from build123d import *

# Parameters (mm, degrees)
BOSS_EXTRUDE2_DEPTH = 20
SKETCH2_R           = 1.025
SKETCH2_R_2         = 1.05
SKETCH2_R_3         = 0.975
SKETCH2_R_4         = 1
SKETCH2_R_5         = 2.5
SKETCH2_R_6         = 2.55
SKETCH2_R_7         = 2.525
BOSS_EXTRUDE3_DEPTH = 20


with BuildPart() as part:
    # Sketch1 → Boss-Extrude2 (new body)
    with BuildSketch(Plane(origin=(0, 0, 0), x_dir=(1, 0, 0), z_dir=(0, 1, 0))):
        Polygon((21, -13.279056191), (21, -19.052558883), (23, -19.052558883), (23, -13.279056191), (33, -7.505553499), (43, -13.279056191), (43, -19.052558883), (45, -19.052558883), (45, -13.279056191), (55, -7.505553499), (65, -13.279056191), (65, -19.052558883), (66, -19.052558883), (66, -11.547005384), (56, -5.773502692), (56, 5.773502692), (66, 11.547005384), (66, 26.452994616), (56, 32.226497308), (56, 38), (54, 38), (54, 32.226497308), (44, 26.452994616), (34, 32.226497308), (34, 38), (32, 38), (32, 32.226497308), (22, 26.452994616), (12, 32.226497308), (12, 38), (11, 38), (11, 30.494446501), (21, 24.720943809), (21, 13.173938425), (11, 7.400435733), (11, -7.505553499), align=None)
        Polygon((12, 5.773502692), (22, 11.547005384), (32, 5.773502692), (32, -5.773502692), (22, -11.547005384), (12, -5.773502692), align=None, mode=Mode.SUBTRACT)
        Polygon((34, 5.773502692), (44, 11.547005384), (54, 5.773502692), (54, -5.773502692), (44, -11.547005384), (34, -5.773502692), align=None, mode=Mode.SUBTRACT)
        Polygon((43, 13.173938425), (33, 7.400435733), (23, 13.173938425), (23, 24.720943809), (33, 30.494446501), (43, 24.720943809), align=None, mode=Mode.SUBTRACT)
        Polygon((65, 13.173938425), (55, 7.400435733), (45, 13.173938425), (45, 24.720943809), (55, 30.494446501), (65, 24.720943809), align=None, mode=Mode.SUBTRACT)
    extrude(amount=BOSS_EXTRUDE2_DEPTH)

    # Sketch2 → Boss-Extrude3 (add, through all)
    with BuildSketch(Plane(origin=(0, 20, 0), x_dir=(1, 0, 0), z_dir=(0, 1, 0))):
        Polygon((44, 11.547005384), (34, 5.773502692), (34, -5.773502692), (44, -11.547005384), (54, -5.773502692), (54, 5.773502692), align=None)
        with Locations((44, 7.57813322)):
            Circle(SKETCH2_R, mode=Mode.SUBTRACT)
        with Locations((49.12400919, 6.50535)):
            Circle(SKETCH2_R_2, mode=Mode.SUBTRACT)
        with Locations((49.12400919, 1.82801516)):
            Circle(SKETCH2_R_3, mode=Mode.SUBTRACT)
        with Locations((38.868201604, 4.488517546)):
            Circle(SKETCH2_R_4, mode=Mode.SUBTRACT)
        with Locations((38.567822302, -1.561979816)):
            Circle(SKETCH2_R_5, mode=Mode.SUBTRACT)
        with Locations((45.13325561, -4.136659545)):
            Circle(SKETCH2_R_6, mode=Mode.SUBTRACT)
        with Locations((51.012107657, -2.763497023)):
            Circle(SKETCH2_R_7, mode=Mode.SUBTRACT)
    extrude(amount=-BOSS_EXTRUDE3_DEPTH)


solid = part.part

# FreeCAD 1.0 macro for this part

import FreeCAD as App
import Part
import Sketcher

V = App.Vector
Q = App.Units.Quantity


def add_polygon(sketch, points):
    """Adds a closed chain of lines whose ends are joined by coincident constraints."""
    first, n = sketch.GeometryCount, len(points)
    for a, b in zip(points, points[1:] + points[:1]):
        sketch.addGeometry(Part.LineSegment(App.Vector(*a, 0), App.Vector(*b, 0)), False)
    for i in range(n):
        sketch.addConstraint(Sketcher.Constraint("Coincident", first + i, 2, first + (i + 1) % n, 1))

doc = App.newDocument("Part")
body = doc.addObject("PartDesign::Body", "Body")

# Sketch on XZ plane
sketch1 = body.newObject("Sketcher::SketchObject", "Sketch")
sketch1.AttachmentSupport = (doc.getObject("XZ_Plane"), [""])
sketch1.MapMode = "FlatFace"
add_polygon(sketch1, [(21, 13.3), (21, 19.1), (23, 19.1), (23, 13.3), (33, 7.5), (43, 13.3), (43, 19.1), (45, 19.1), (45, 13.3), (55, 7.5), (65, 13.3), (65, 19.1), (66, 19.1), (66, 11.5), (56, 5.8), (56, -5.8), (66, -11.5), (66, -26.5), (56, -32.2), (56, -38), (54, -38), (54, -32.2), (44, -26.5), (34, -32.2), (34, -38), (32, -38), (32, -32.2), (22, -26.5), (12, -32.2), (12, -38), (11, -38), (11, -30.5), (21, -24.7), (21, -13.2), (11, -7.4), (11, 7.5)])  # lines 0-35
add_polygon(sketch1, [(12, 5.8), (12, -5.8), (22, -11.5), (32, -5.8), (32, 5.8), (22, 11.5)])  # lines 36-41
add_polygon(sketch1, [(34, 5.8), (34, -5.8), (44, -11.5), (54, -5.8), (54, 5.8), (44, 11.5)])  # lines 42-47
add_polygon(sketch1, [(43, -24.7), (43, -13.2), (33, -7.4), (23, -13.2), (23, -24.7), (33, -30.5)])  # lines 48-53
add_polygon(sketch1, [(65, -24.7), (65, -13.2), (55, -7.4), (45, -13.2), (45, -24.7), (55, -30.5)])  # lines 54-59
sketch1.addConstraint(Sketcher.Constraint("Vertical", 0))
sketch1.addConstraint(Sketcher.Constraint("Horizontal", 1))
sketch1.addConstraint(Sketcher.Constraint("Vertical", 2))
sketch1.addConstraint(Sketcher.Constraint("Vertical", 5))
sketch1.addConstraint(Sketcher.Constraint("Horizontal", 6))
sketch1.addConstraint(Sketcher.Constraint("Vertical", 7))
sketch1.addConstraint(Sketcher.Constraint("Vertical", 10))
sketch1.addConstraint(Sketcher.Constraint("Horizontal", 11))
sketch1.addConstraint(Sketcher.Constraint("Vertical", 12))
sketch1.addConstraint(Sketcher.Constraint("Vertical", 14))
sketch1.addConstraint(Sketcher.Constraint("Vertical", 16))
sketch1.addConstraint(Sketcher.Constraint("Vertical", 18))
sketch1.addConstraint(Sketcher.Constraint("Horizontal", 19))
sketch1.addConstraint(Sketcher.Constraint("Vertical", 20))
sketch1.addConstraint(Sketcher.Constraint("Vertical", 23))
sketch1.addConstraint(Sketcher.Constraint("Horizontal", 24))
sketch1.addConstraint(Sketcher.Constraint("Vertical", 25))
sketch1.addConstraint(Sketcher.Constraint("Vertical", 28))
sketch1.addConstraint(Sketcher.Constraint("Horizontal", 29))
sketch1.addConstraint(Sketcher.Constraint("Vertical", 30))
sketch1.addConstraint(Sketcher.Constraint("Vertical", 32))
sketch1.addConstraint(Sketcher.Constraint("Vertical", 34))
sketch1.addConstraint(Sketcher.Constraint("Vertical", 36))
sketch1.addConstraint(Sketcher.Constraint("Vertical", 39))
sketch1.addConstraint(Sketcher.Constraint("Vertical", 42))
sketch1.addConstraint(Sketcher.Constraint("Vertical", 45))
sketch1.addConstraint(Sketcher.Constraint("Vertical", 48))
sketch1.addConstraint(Sketcher.Constraint("Vertical", 51))
sketch1.addConstraint(Sketcher.Constraint("Vertical", 54))
sketch1.addConstraint(Sketcher.Constraint("Vertical", 57))
sketch1.addConstraint(Sketcher.Constraint("Symmetric", 12, 2, 15, 2, -1))
sketch1.addConstraint(Sketcher.Constraint("Symmetric", 37, 2, 40, 2, -1))
sketch1.addConstraint(Sketcher.Constraint("Symmetric", 43, 2, 46, 2, -1))
sketch1.addConstraint(Sketcher.Constraint("Parallel", 3, 8))
sketch1.addConstraint(Sketcher.Constraint("Parallel", 4, 9))
sketch1.addConstraint(Sketcher.Constraint("Parallel", 9, 13))
sketch1.addConstraint(Sketcher.Constraint("Parallel", 8, 15))
sketch1.addConstraint(Sketcher.Constraint("Parallel", 13, 17))
sketch1.addConstraint(Sketcher.Constraint("Parallel", 15, 21))
sketch1.addConstraint(Sketcher.Constraint("Parallel", 17, 22))
sketch1.addConstraint(Sketcher.Constraint("Parallel", 21, 26))
sketch1.addConstraint(Sketcher.Constraint("Parallel", 22, 27))
sketch1.addConstraint(Sketcher.Constraint("Parallel", 27, 31))
sketch1.addConstraint(Sketcher.Constraint("Parallel", 26, 33))
sketch1.addConstraint(Sketcher.Constraint("Parallel", 31, 35))
sketch1.addConstraint(Sketcher.Constraint("Parallel", 33, 37))
sketch1.addConstraint(Sketcher.Constraint("Parallel", 35, 38))
sketch1.addConstraint(Sketcher.Constraint("Parallel", 37, 40))
sketch1.addConstraint(Sketcher.Constraint("Parallel", 38, 41))
sketch1.addConstraint(Sketcher.Constraint("Parallel", 40, 43))
sketch1.addConstraint(Sketcher.Constraint("Parallel", 41, 44))
sketch1.addConstraint(Sketcher.Constraint("Parallel", 43, 46))
sketch1.addConstraint(Sketcher.Constraint("Parallel", 44, 47))
sketch1.addConstraint(Sketcher.Constraint("Parallel", 46, 49))
sketch1.addConstraint(Sketcher.Constraint("Parallel", 47, 50))
sketch1.addConstraint(Sketcher.Constraint("Parallel", 49, 52))
sketch1.addConstraint(Sketcher.Constraint("Parallel", 50, 53))
sketch1.addConstraint(Sketcher.Constraint("Parallel", 52, 55))
sketch1.addConstraint(Sketcher.Constraint("Parallel", 53, 56))
sketch1.addConstraint(Sketcher.Constraint("Parallel", 55, 58))
sketch1.addConstraint(Sketcher.Constraint("Parallel", 56, 59))
sketch1.addConstraint(Sketcher.Constraint("Horizontal", 2, 2, 4, 2))
sketch1.addConstraint(Sketcher.Constraint("Horizontal", 1, 2, 5, 2))
sketch1.addConstraint(Sketcher.Constraint("Horizontal", 4, 2, 7, 2))
sketch1.addConstraint(Sketcher.Constraint("Horizontal", 3, 2, 8, 2))
sketch1.addConstraint(Sketcher.Constraint("Horizontal", 7, 2, 9, 2))
sketch1.addConstraint(Sketcher.Constraint("Horizontal", 6, 2, 10, 2))
sketch1.addConstraint(Sketcher.Constraint("Horizontal", 17, 2, 20, 2))
sketch1.addConstraint(Sketcher.Constraint("Horizontal", 16, 2, 21, 2))
sketch1.addConstraint(Sketcher.Constraint("Horizontal", 20, 2, 22, 2))
sketch1.addConstraint(Sketcher.Constraint("Horizontal", 19, 2, 23, 2))
sketch1.addConstraint(Sketcher.Constraint("Horizontal", 22, 2, 25, 2))
sketch1.addConstraint(Sketcher.Constraint("Horizontal", 21, 2, 26, 2))
sketch1.addConstraint(Sketcher.Constraint("Horizontal", 25, 2, 27, 2))
sketch1.addConstraint(Sketcher.Constraint("Horizontal", 24, 2, 28, 2))
sketch1.addConstraint(Sketcher.Constraint("Horizontal", 8, 2, 34, 2))
sketch1.addConstraint(Sketcher.Constraint("Horizontal", 9, 2, 35, 2))
sketch1.addConstraint(Sketcher.Constraint("Horizontal", 14, 2, 36, 2))
sketch1.addConstraint(Sketcher.Constraint("Horizontal", 15, 2, 37, 2))
sketch1.addConstraint(Sketcher.Constraint("Horizontal", 36, 2, 38, 2))
sketch1.addConstraint(Sketcher.Constraint("Horizontal", 13, 2, 39, 2))
sketch1.addConstraint(Sketcher.Constraint("Horizontal", 38, 2, 42, 2))
sketch1.addConstraint(Sketcher.Constraint("Horizontal", 37, 2, 43, 2))
sketch1.addConstraint(Sketcher.Constraint("Horizontal", 42, 2, 44, 2))
sketch1.addConstraint(Sketcher.Constraint("Horizontal", 32, 2, 48, 2))
sketch1.addConstraint(Sketcher.Constraint("Horizontal", 33, 2, 49, 2))
sketch1.addConstraint(Sketcher.Constraint("Horizontal", 48, 2, 50, 2))
sketch1.addConstraint(Sketcher.Constraint("Horizontal", 31, 2, 51, 2))
sketch1.addConstraint(Sketcher.Constraint("Horizontal", 30, 2, 52, 2))
sketch1.addConstraint(Sketcher.Constraint("Horizontal", 51, 2, 53, 2))
sketch1.addConstraint(Sketcher.Constraint("Horizontal", 50, 2, 54, 2))
sketch1.addConstraint(Sketcher.Constraint("Horizontal", 49, 2, 55, 2))
sketch1.addConstraint(Sketcher.Constraint("Horizontal", 54, 2, 56, 2))
sketch1.addConstraint(Sketcher.Constraint("Horizontal", 53, 2, 57, 2))
sketch1.addConstraint(Sketcher.Constraint("Horizontal", 52, 2, 58, 2))
sketch1.addConstraint(Sketcher.Constraint("Vertical", 14, 2, 17, 2))
sketch1.addConstraint(Sketcher.Constraint("Vertical", 0, 2, 31, 2))
sketch1.addConstraint(Sketcher.Constraint("Vertical", 28, 2, 36, 2))
sketch1.addConstraint(Sketcher.Constraint("Vertical", 23, 2, 42, 2))
sketch1.addConstraint(Sketcher.Constraint("Vertical", 5, 2, 48, 2))
sketch1.addConstraint(Sketcher.Constraint("Vertical", 10, 2, 54, 2))
sketch1.addConstraint(Sketcher.Constraint("Equal", 1, 6))
sketch1.addConstraint(Sketcher.Constraint("Equal", 6, 19))
sketch1.addConstraint(Sketcher.Constraint("Equal", 19, 24))
sketch1.addConstraint(Sketcher.Constraint("Equal", 11, 29))
sketch1.addConstraint(Sketcher.Constraint("Equal", 10, 18))
sketch1.addConstraint(Sketcher.Constraint("Equal", 12, 30))
sketch1.addConstraint(Sketcher.Constraint("Equal", 14, 32))
sketch1.addConstraint(Sketcher.Constraint("DistanceX", 1, 1, 1, 2, Q("2 mm")))
sketch1.addConstraint(Sketcher.Constraint("DistanceX", 11, 1, 11, 2, Q("1 mm")))
sketch1.addConstraint(Sketcher.Constraint("Angle", 3, Q("-30 deg")))
sketch1.addConstraint(Sketcher.Constraint("DistanceX", -1, 1, 0, 2, Q("21 mm")))
sketch1.addConstraint(Sketcher.Constraint("DistanceX", -1, 1, 3, 2, Q("33 mm")))
sketch1.addConstraint(Sketcher.Constraint("DistanceY", 18, 2, -1, 1, Q("38 mm")))
sketch1.addConstraint(Sketcher.Constraint("DistanceY", 16, 2, 12, 2, Q("38 mm")))
sketch1.addConstraint(Sketcher.Constraint("DistanceY", 16, 2, 16, 1, Q("14.905989 mm")))
sketch1.addConstraint(Sketcher.Constraint("DistanceY", 12, 2, 12, 1, Q("7.505553 mm")))
pad1 = body.newObject("PartDesign::Pad", "Pad")
pad1.Profile = sketch1
pad1.Length = 20
pad1.Reversed = True

# Sketch on XZ plane
sketch2 = body.newObject("Sketcher::SketchObject", "Sketch001")
sketch2.AttachmentSupport = (doc.getObject("XZ_Plane"), [""])
sketch2.MapMode = "FlatFace"
sketch2.AttachmentOffset = App.Placement(V(0, 0, -20), App.Rotation())
add_polygon(sketch2, [(44, -11.5), (34, -5.8), (34, 5.8), (44, 11.5), (54, 5.8), (54, -5.8)])  # lines 0-5
sketch2.addGeometry(Part.Circle(V(38.6, 1.6, 0), V(0, 0, 1), 2.5), False)  # 6
sketch2.addGeometry(Part.Circle(V(45.1, 4.1, 0), V(0, 0, 1), 2.5), False)  # 7
sketch2.addGeometry(Part.Circle(V(51, 2.8, 0), V(0, 0, 1), 2.5), False)  # 8
sketch2.addGeometry(Part.Circle(V(38.9, -4.5, 0), V(0, 0, 1), 1), False)  # 9
sketch2.addGeometry(Part.Circle(V(44, -7.6, 0), V(0, 0, 1), 1), False)  # 10
sketch2.addGeometry(Part.Circle(V(49.1, -1.8, 0), V(0, 0, 1), 1), False)  # 11
sketch2.addGeometry(Part.Circle(V(49.1, -6.5, 0), V(0, 0, 1), 1.1), False)  # 12
sketch2.addConstraint(Sketcher.Constraint("Vertical", 1))
sketch2.addConstraint(Sketcher.Constraint("Vertical", 4))
sketch2.addConstraint(Sketcher.Constraint("Symmetric", 2, 2, 5, 2, -1))
sketch2.addConstraint(Sketcher.Constraint("Parallel", 0, 3))
sketch2.addConstraint(Sketcher.Constraint("Parallel", 2, 5))
sketch2.addConstraint(Sketcher.Constraint("Horizontal", 1, 2, 3, 2))
sketch2.addConstraint(Sketcher.Constraint("Horizontal", 0, 2, 4, 2))
sketch2.addConstraint(Sketcher.Constraint("Vertical", 11, 3, 12, 3))
sketch2.addConstraint(Sketcher.Constraint("Vertical", 10, 3, 2, 2))
sketch2.addConstraint(Sketcher.Constraint("Diameter", 6, Q("5 mm")))
sketch2.addConstraint(Sketcher.Constraint("Diameter", 9, Q("2 mm")))
sketch2.addConstraint(Sketcher.Constraint("Diameter", 7, Q("5.1 mm")))
sketch2.addConstraint(Sketcher.Constraint("Diameter", 12, Q("2.1 mm")))
sketch2.addConstraint(Sketcher.Constraint("Diameter", 8, Q("5.05 mm")))
sketch2.addConstraint(Sketcher.Constraint("Diameter", 10, Q("2.05 mm")))
sketch2.addConstraint(Sketcher.Constraint("Diameter", 11, Q("1.95 mm")))
sketch2.addConstraint(Sketcher.Constraint("Angle", 0, Q("150 deg")))
sketch2.addConstraint(Sketcher.Constraint("DistanceX", -1, 1, 10, 3, Q("44 mm")))
sketch2.addConstraint(Sketcher.Constraint("DistanceX", -1, 1, 0, 2, Q("34 mm")))
sketch2.addConstraint(Sketcher.Constraint("DistanceY", 4, 2, 8, 3, Q("8.537 mm")))
sketch2.addConstraint(Sketcher.Constraint("DistanceX", -1, 1, 9, 3, Q("38.868202 mm")))
sketch2.addConstraint(Sketcher.Constraint("DistanceX", 11, 3, 8, 3, Q("1.888098 mm")))
sketch2.addConstraint(Sketcher.Constraint("DistanceY", 1, 1, 1, 2, Q("11.547005 mm")))
sketch2.addConstraint(Sketcher.Constraint("DistanceY", -1, 1, 6, 3, Q("1.56198 mm")))
sketch2.addConstraint(Sketcher.Constraint("DistanceY", -1, 1, 7, 3, Q("4.13666 mm")))
sketch2.addConstraint(Sketcher.Constraint("DistanceX", -1, 1, 11, 3, Q("49.124009 mm")))
sketch2.addConstraint(Sketcher.Constraint("DistanceY", 12, 3, -1, 1, Q("6.50535 mm")))
sketch2.addConstraint(Sketcher.Constraint("DistanceX", 6, 3, 9, 3, Q("0.300379 mm")))
sketch2.addConstraint(Sketcher.Constraint("DistanceY", 10, 3, 8, 3, Q("10.34163 mm")))
sketch2.addConstraint(Sketcher.Constraint("DistanceY", 10, 3, 11, 3, Q("5.750118 mm")))
sketch2.addConstraint(Sketcher.Constraint("DistanceY", 9, 3, 1, 2, Q("10.26202 mm")))
sketch2.addConstraint(Sketcher.Constraint("DistanceX", -1, 1, 7, 3, Q("45.133256 mm")))
pad2 = body.newObject("PartDesign::Pad", "Pad001")
pad2.Profile = sketch2
pad2.Length = 20

doc.recompute()
